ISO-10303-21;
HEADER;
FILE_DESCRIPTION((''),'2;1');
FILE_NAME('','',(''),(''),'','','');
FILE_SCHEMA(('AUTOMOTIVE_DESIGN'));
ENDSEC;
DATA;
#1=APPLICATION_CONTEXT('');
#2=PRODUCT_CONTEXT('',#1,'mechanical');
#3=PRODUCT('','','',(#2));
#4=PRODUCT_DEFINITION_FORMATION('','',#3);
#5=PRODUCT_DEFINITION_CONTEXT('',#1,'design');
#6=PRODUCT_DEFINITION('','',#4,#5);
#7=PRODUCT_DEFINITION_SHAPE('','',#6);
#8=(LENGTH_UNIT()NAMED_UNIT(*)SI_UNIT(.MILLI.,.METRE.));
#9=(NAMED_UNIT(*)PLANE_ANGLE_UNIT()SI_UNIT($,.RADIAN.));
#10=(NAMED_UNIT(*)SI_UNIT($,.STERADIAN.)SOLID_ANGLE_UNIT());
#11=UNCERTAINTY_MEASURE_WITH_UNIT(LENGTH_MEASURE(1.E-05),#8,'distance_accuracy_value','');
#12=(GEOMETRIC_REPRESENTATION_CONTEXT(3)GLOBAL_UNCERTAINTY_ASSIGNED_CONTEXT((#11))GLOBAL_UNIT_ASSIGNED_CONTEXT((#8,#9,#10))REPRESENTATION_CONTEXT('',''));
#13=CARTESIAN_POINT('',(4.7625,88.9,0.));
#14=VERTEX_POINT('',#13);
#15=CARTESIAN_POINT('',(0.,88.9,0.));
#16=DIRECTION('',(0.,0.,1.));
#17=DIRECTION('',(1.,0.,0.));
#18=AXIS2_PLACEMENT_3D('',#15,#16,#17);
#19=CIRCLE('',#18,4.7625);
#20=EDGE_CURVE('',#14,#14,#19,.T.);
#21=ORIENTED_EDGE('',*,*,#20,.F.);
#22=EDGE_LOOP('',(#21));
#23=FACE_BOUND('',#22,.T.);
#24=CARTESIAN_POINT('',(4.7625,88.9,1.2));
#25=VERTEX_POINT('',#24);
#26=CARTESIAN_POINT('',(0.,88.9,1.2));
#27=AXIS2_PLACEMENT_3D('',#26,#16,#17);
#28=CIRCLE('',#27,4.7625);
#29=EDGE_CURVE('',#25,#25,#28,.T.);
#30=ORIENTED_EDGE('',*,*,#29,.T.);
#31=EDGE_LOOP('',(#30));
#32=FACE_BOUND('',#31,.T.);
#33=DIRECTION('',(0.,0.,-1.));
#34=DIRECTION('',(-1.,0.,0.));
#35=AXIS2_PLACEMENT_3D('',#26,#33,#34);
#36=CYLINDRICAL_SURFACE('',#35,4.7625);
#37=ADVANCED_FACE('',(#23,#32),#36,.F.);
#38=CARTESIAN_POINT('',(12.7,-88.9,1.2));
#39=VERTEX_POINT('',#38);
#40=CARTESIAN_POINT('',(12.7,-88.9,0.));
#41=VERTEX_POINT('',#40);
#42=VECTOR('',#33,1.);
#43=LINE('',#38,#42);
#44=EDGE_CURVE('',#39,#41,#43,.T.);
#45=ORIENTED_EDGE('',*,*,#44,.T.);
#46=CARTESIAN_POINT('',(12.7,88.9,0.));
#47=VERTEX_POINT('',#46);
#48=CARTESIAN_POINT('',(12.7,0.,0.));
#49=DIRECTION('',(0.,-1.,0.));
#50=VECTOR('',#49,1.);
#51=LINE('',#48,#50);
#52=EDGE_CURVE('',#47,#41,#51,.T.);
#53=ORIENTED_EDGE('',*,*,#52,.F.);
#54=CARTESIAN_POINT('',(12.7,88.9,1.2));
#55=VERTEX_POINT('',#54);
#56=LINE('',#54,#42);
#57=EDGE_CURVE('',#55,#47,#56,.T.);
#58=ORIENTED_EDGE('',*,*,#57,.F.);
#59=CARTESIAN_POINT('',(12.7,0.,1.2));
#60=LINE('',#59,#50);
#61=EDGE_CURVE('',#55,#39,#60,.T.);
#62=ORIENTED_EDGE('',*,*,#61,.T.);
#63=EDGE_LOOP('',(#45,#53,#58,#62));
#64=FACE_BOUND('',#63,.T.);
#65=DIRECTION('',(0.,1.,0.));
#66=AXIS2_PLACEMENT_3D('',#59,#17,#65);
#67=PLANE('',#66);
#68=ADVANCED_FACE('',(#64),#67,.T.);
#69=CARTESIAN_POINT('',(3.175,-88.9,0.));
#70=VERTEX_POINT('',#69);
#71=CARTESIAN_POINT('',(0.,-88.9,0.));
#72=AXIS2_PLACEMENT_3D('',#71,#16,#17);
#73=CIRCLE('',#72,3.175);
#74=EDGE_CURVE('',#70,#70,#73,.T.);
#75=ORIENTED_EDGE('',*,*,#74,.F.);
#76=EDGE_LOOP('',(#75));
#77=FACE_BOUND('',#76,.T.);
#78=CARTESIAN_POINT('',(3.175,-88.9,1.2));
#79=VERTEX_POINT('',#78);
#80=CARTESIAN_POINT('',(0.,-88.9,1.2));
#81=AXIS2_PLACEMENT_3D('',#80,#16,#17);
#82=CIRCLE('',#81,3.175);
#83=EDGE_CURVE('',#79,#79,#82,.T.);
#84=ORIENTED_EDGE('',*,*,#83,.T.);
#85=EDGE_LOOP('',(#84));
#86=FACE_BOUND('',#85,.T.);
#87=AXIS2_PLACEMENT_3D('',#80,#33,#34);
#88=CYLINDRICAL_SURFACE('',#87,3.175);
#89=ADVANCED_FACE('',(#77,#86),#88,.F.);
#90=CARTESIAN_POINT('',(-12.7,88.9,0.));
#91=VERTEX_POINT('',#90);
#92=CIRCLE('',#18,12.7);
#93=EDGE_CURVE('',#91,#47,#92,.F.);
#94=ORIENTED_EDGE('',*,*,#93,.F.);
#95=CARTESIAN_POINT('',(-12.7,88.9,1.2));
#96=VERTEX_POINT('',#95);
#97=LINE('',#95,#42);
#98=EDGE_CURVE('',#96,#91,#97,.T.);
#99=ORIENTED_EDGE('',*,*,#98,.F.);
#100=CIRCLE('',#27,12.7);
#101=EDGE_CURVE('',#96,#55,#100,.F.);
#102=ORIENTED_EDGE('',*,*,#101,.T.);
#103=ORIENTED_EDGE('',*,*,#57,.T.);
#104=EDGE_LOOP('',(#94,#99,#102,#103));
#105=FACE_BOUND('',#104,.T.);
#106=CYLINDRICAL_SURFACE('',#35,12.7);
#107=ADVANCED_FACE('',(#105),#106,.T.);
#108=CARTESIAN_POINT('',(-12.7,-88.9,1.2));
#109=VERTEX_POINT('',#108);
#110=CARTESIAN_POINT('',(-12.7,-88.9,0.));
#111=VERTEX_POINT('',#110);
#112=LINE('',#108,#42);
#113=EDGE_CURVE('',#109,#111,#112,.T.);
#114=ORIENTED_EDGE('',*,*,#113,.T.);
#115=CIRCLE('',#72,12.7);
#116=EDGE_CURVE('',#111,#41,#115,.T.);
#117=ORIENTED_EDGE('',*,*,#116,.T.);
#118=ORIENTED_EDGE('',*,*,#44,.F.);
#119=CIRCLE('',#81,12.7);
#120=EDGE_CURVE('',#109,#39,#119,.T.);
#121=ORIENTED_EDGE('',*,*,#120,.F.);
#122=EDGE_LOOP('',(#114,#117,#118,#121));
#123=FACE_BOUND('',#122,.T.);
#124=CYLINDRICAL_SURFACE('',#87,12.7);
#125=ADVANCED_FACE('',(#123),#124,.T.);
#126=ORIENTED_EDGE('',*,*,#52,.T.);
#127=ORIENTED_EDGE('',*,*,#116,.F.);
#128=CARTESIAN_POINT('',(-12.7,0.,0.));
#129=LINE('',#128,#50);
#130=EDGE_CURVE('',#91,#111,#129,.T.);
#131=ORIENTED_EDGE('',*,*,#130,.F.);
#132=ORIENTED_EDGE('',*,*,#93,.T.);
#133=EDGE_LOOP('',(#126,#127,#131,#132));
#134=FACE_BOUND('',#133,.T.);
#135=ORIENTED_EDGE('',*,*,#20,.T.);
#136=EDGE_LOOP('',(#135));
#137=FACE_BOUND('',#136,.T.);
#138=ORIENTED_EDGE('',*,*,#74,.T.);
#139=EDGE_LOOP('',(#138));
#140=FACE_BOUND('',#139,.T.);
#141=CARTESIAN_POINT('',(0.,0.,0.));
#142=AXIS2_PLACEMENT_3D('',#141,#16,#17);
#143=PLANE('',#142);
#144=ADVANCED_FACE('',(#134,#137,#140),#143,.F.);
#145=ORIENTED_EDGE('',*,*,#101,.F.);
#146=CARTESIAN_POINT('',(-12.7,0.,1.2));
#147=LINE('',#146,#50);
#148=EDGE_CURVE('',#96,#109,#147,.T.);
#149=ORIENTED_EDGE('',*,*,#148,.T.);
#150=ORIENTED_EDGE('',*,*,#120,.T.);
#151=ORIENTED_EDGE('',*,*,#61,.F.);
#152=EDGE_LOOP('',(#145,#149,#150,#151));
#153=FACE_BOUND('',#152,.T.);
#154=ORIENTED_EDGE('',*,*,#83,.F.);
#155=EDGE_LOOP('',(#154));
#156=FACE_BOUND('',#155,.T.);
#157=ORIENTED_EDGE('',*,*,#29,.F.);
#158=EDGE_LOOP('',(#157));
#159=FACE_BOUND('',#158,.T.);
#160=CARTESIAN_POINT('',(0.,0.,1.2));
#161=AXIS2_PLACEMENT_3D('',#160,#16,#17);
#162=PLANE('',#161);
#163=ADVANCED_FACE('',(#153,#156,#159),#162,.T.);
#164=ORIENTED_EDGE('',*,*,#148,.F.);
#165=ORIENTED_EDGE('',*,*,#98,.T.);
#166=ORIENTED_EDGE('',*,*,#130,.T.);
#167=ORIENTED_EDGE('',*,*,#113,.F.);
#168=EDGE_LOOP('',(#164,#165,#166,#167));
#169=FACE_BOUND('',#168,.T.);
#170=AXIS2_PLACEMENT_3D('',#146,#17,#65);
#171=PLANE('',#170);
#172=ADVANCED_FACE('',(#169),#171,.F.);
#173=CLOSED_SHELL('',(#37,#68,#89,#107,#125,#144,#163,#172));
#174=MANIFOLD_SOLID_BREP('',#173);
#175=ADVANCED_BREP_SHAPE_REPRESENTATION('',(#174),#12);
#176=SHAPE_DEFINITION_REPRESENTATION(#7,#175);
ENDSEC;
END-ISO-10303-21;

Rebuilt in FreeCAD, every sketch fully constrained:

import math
import FreeCAD as App
import Part
import Sketcher

V = App.Vector
Q = App.Units.Quantity

doc = App.newDocument("Part")
params = doc.addObject("Spreadsheet::Sheet", "Params")
for row, (alias, value) in enumerate([
    ("sketch1_radius", "0.5 in"),
    ("sketch1_diameter", "0.25 in"),
    ("sketch1_height", "7 in"),
    ("sketch1_diameter2", "0.375 in"),
    ("pad1_length", "1.2 mm"),
], start=1):
    params.set(f"A{row}", alias)
    params.set(f"B{row}", "=" + value)
    params.setAlias(f"B{row}", alias)

body = doc.addObject("PartDesign::Body", "Body")

sketch1 = doc.addObject("Sketcher::SketchObject", "Sketch")
body.addObject(sketch1)
sketch1.AttachmentSupport = (doc.XY_Plane, [""])
sketch1.MapMode = "FlatFace"
sketch1.addGeometry([
    Part.LineSegment(V(-12.7, 88.9, 0), V(-12.7, -88.9, 0)),
    Part.ArcOfCircle(Part.Circle(V(0, -88.9, 0), V(0, 0, 1), 12.7), math.radians(180), math.radians(360)),
    Part.LineSegment(V(12.7, -88.9, 0), V(12.7, 88.9, 0)),
    Part.ArcOfCircle(Part.Circle(V(0, 88.9, 0), V(0, 0, 1), 12.7), math.radians(0), math.radians(180)),
    Part.Circle(V(0, -88.9, 0), V(0, 0, 1), 3.175),
    Part.Circle(V(0, 88.9, 0), V(0, 0, 1), 4.7625),
], False)
sketch1.addConstraint([
    Sketcher.Constraint("Tangent", 0, 2, 1, 1),
    Sketcher.Constraint("Tangent", 1, 2, 2, 1),
    Sketcher.Constraint("Tangent", 2, 2, 3, 1),
    Sketcher.Constraint("Tangent", 3, 2, 0, 1),
    Sketcher.Constraint("Vertical", 0),
    Sketcher.Constraint("Vertical", 2),
    Sketcher.Constraint("Coincident", 4, 3, 1, 3),
    Sketcher.Constraint("Coincident", 5, 3, 3, 3),
    Sketcher.Constraint("Symmetric", 1, 3, 3, 3, -1, 1),
    Sketcher.Constraint("Radius", 1, Q("0.5 in")),
    Sketcher.Constraint("Diameter", 4, Q("0.25 in")),
    Sketcher.Constraint("DistanceY", 0, 2, 0, 1, Q("7 in")),
    Sketcher.Constraint("Diameter", 5, Q("0.375 in")),
])
sketch1.setExpression("Constraints[9]", "Params.sketch1_radius")
sketch1.setExpression("Constraints[10]", "Params.sketch1_diameter")
sketch1.setExpression("Constraints[11]", "Params.sketch1_height")
sketch1.setExpression("Constraints[12]", "Params.sketch1_diameter2")
pad1 = doc.addObject("PartDesign::Pad", "Pad")
body.addObject(pad1)
pad1.Profile = sketch1
pad1.setExpression("Length", "Params.pad1_length")

doc.recompute()
